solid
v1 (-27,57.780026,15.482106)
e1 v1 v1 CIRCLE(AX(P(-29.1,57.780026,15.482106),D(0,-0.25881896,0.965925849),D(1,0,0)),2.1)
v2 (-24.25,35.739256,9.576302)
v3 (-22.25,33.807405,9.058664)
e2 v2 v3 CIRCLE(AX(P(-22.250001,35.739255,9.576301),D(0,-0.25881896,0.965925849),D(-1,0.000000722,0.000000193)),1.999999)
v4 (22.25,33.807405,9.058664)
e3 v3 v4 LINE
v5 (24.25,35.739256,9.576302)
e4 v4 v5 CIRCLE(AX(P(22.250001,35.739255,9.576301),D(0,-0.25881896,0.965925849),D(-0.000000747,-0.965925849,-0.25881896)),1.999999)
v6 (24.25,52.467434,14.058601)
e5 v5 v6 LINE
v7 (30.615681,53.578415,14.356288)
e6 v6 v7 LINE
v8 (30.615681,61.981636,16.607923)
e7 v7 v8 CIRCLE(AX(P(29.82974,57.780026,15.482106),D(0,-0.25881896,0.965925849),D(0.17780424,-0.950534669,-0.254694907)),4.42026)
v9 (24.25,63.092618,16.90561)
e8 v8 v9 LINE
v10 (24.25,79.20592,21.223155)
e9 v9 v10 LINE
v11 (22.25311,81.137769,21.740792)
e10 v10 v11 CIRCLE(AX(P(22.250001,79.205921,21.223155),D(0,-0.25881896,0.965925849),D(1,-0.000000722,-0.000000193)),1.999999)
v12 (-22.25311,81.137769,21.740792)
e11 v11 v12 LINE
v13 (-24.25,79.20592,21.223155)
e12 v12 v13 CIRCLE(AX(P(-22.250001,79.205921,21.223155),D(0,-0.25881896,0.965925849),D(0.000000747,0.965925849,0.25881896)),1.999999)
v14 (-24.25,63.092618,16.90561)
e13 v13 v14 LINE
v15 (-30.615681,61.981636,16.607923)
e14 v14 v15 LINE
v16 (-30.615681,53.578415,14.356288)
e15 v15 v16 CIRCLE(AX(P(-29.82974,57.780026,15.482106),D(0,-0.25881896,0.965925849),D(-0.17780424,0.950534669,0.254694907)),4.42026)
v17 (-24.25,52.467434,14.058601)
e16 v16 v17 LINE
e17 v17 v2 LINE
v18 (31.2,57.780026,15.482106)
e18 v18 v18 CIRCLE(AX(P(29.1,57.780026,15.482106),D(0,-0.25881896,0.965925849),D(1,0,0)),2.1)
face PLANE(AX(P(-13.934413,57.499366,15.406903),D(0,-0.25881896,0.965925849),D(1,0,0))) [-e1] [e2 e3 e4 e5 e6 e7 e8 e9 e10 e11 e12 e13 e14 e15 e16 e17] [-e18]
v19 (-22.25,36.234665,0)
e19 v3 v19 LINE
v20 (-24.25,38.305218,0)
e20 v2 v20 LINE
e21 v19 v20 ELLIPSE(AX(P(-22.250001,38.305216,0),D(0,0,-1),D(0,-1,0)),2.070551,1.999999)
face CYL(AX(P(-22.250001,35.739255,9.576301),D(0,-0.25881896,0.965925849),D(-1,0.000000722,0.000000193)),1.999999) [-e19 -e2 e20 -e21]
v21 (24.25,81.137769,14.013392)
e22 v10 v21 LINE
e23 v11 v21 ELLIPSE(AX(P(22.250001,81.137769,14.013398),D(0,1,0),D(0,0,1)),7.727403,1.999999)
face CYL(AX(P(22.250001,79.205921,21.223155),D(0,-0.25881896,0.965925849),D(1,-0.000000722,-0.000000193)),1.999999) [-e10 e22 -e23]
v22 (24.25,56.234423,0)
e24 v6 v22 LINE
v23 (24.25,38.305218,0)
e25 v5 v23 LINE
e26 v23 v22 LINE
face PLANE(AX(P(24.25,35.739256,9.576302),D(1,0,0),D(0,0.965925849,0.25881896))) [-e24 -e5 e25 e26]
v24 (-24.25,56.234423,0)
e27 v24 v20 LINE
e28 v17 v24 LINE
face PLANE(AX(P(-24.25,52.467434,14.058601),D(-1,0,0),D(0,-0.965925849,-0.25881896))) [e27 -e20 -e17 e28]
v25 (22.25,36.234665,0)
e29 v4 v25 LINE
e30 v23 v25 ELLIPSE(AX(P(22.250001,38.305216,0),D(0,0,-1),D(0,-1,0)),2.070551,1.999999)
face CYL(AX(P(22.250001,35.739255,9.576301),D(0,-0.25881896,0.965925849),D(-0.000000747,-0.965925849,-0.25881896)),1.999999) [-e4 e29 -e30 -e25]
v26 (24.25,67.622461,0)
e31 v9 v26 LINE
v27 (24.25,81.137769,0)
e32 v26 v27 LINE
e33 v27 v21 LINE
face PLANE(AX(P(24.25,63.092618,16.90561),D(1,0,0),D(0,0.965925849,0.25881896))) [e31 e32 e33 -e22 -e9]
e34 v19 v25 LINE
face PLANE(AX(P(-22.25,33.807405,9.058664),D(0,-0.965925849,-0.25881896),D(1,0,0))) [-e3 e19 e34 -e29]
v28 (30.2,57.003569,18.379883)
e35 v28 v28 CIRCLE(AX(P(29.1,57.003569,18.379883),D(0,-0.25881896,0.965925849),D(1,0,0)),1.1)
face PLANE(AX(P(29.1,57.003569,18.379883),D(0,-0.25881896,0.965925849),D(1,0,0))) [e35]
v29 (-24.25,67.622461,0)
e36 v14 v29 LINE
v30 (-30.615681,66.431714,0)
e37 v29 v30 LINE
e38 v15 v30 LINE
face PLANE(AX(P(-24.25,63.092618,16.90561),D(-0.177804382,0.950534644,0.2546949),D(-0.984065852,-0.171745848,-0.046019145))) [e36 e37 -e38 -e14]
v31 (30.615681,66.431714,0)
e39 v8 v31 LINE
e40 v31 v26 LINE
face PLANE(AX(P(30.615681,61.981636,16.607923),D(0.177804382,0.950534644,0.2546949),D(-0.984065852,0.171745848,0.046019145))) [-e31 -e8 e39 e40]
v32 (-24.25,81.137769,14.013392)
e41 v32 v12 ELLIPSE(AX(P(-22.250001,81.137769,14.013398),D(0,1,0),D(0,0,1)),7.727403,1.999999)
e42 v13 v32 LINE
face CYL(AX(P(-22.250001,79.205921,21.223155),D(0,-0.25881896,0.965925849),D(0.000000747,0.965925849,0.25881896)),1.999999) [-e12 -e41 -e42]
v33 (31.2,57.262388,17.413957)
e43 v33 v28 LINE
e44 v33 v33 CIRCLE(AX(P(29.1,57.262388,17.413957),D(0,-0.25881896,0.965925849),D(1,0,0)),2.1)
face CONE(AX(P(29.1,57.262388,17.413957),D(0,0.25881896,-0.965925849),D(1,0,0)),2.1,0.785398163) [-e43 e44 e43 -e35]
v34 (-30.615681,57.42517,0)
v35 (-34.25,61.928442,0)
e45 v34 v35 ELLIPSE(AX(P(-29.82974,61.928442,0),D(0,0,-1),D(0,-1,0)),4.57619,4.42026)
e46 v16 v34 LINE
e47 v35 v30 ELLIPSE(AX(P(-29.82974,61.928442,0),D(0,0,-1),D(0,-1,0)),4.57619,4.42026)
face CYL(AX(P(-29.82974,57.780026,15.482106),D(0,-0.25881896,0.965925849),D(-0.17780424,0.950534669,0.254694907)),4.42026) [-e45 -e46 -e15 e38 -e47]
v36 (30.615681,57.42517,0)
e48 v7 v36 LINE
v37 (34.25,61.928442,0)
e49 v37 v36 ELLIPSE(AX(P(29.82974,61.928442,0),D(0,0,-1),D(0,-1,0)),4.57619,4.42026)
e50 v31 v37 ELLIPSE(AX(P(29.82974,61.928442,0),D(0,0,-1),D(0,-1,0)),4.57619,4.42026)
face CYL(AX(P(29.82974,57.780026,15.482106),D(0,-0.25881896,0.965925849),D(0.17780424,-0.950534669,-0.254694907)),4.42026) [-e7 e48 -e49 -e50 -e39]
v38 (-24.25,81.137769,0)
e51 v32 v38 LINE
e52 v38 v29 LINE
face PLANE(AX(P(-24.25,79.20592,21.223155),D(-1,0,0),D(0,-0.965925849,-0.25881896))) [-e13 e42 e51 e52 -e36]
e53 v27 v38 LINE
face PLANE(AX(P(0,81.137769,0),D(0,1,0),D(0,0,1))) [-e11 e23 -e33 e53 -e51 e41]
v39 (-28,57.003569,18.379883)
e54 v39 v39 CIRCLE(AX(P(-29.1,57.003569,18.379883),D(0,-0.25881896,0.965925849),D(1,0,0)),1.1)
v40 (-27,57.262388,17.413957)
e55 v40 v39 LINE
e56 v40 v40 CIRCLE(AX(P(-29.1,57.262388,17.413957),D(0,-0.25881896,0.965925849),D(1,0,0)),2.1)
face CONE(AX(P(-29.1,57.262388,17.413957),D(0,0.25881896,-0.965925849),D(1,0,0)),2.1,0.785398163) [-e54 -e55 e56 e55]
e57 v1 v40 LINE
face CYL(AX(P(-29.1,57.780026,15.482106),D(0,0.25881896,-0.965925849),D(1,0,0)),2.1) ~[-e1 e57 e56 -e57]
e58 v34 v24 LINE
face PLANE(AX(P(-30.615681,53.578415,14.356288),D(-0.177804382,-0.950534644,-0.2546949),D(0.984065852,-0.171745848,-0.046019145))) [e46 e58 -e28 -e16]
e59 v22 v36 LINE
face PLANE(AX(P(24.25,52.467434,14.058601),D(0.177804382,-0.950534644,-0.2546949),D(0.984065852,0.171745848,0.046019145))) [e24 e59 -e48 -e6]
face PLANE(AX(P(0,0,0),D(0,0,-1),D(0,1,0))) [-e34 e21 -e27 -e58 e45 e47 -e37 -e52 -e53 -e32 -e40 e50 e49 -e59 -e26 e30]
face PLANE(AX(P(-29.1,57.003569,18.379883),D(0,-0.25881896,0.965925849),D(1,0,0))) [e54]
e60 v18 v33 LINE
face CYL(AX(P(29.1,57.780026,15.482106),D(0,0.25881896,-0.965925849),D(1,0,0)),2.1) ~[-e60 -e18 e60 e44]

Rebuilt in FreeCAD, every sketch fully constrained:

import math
import FreeCAD as App
import Part
import Sketcher

V = App.Vector
Q = App.Units.Quantity


def edges_at(feature, points):
    """Names of the edges that pass closest to the given points."""
    edges = feature.Shape.Edges
    near = lambda p: min(range(len(edges)), key=lambda i: edges[i].distToShape(Part.Vertex(*p))[0])
    return sorted({f"Edge{near(p) + 1}" for p in points})


def add_polygon(sketch, points):
    """Adds a closed chain of lines whose ends are joined by coincident constraints."""
    first, n = sketch.GeometryCount, len(points)
    for a, b in zip(points, points[1:] + points[:1]):
        sketch.addGeometry(Part.LineSegment(App.Vector(*a, 0), App.Vector(*b, 0)), False)
    for i in range(n):
        sketch.addConstraint(Sketcher.Constraint("Coincident", first + i, 2, first + (i + 1) % n, 1))

doc = App.newDocument("Part")
body = doc.addObject("PartDesign::Body", "Body")

# Sketch on YZ plane
sketch1 = body.newObject("Sketcher::SketchObject", "Sketch")
sketch1.AttachmentSupport = (doc.getObject("YZ_Plane"), [""])
sketch1.MapMode = "FlatFace"
add_polygon(sketch1, [(81, 22), (0, 0), (81, 0)])  # lines 0-2
sketch1.addConstraint([
    Sketcher.Constraint("Horizontal", 1),
    Sketcher.Constraint("Vertical", 2),
    Sketcher.Constraint("Coincident", 0, 2, -1, 1),
    Sketcher.Constraint("Angle", 0, Q("-165 deg")),
    Sketcher.Constraint("Distance", 0, Q("84 mm")),
])
pad1 = body.newObject("PartDesign::Pad", "Pad")
pad1.Profile = sketch1
pad1.Length = 68.5
pad1.Midplane = True
body2 = doc.addObject("PartDesign::Body", "Body001")

# Sketch on an angled plane
sketch2 = body2.newObject("Sketcher::SketchObject", "Sketch001")
sketch2.Placement = App.Placement(V(0, 0, 0), App.Rotation(V(1, 0, 0), V(0, 0.965925849, 0.25881896), V(0, -0.25881896, 0.965925849), "ZXY"))
sketch2.addGeometry([
    Part.LineSegment(V(-22.2, 35, 0), V(22.2, 35, 0)),  # 0
    Part.ArcOfCircle(Part.Circle(V(22.3, 37, 0), V(0, 0, 1), 2), math.radians(-90), math.radians(0)),  # 1
    Part.LineSegment(V(24.2, 37, 0), V(24.2, 54.3, 0)),  # 2
    Part.LineSegment(V(24.2, 54.3, 0), V(30.6, 55.5, 0)),  # 3
    Part.ArcOfCircle(Part.Circle(V(29.8, 59.8, 0), V(0, 0, 1), 4.4), math.radians(-80), math.radians(80)),  # 4
    Part.LineSegment(V(30.6, 64.2, 0), V(24.2, 65.3, 0)),  # 5
    Part.LineSegment(V(24.2, 65.3, 0), V(24.2, 82, 0)),  # 6
    Part.ArcOfCircle(Part.Circle(V(22.3, 82, 0), V(0, 0, 1), 2), math.radians(0), math.radians(90)),  # 7
    Part.LineSegment(V(22.2, 84, 0), V(-22.2, 84, 0)),  # 8
    Part.ArcOfCircle(Part.Circle(V(-22.3, 82, 0), V(0, 0, 1), 2), math.radians(90), math.radians(180)),  # 9
    Part.LineSegment(V(-24.2, 82, 0), V(-24.2, 65.3, 0)),  # 10
    Part.LineSegment(V(-24.2, 65.3, 0), V(-30.6, 64.2, 0)),  # 11
    Part.ArcOfCircle(Part.Circle(V(-29.8, 59.8, 0), V(0, 0, 1), 4.4), math.radians(100), math.radians(260)),  # 12
    Part.LineSegment(V(-30.6, 55.5, 0), V(-24.2, 54.3, 0)),  # 13
    Part.LineSegment(V(-24.2, 54.3, 0), V(-24.2, 37, 0)),  # 14
    Part.ArcOfCircle(Part.Circle(V(-22.3, 37, 0), V(0, 0, 1), 2), math.radians(180), math.radians(270)),  # 15
], False)
sketch2.addConstraint([
    Sketcher.Constraint("Tangent", 0, 2, 1, 1),
    Sketcher.Constraint("Tangent", 1, 2, 2, 1),
    Sketcher.Constraint("Coincident", 2, 2, 3, 1),
    Sketcher.Constraint("Tangent", 3, 2, 4, 1),
    Sketcher.Constraint("Tangent", 4, 2, 5, 1),
    Sketcher.Constraint("Coincident", 5, 2, 6, 1),
    Sketcher.Constraint("Tangent", 6, 2, 7, 1),
    Sketcher.Constraint("Tangent", 7, 2, 8, 1),
    Sketcher.Constraint("Tangent", 8, 2, 9, 1),
    Sketcher.Constraint("Tangent", 9, 2, 10, 1),
    Sketcher.Constraint("Coincident", 10, 2, 11, 1),
    Sketcher.Constraint("Tangent", 11, 2, 12, 1),
    Sketcher.Constraint("Tangent", 12, 2, 13, 1),
    Sketcher.Constraint("Coincident", 13, 2, 14, 1),
    Sketcher.Constraint("Tangent", 14, 2, 15, 1),
    Sketcher.Constraint("Tangent", 15, 2, 0, 1),
    Sketcher.Constraint("Horizontal", 0),
    Sketcher.Constraint("Vertical", 2),
    Sketcher.Constraint("Vertical", 6),
    Sketcher.Constraint("Horizontal", 8),
    Sketcher.Constraint("Vertical", 10),
    Sketcher.Constraint("Vertical", 14),
    Sketcher.Constraint("Equal", 1, 7),
    Sketcher.Constraint("Equal", 7, 9),
    Sketcher.Constraint("Equal", 4, 12),
    Sketcher.Constraint("Equal", 9, 15),
    Sketcher.Constraint("Symmetric", 4, 3, 12, 3, -2),
    Sketcher.Constraint("Symmetric", 5, 2, 10, 2, -2),
    Sketcher.Constraint("Symmetric", 2, 2, 13, 2, -2),
    Sketcher.Constraint("Parallel", 3, 11),
    Sketcher.Constraint("Vertical", 1, 3, 7, 3),
    Sketcher.Constraint("Radius", 1, Q("1.999999 mm")),
    Sketcher.Constraint("DistanceX", 0, 1, 0, 2, Q("44.5 mm")),
    Sketcher.Constraint("DistanceY", -1, 1, 1, 3, Q("36.999998 mm")),
    Sketcher.Constraint("DistanceY", -1, 1, 7, 3, Q("82.000001 mm")),
    Sketcher.Constraint("DistanceY", 2, 2, 5, 2, Q("11 mm")),
    Sketcher.Constraint("Radius", 4, Q("4.42026 mm")),
    Sketcher.Constraint("DistanceY", 2, 1, 2, 2, Q("17.318283 mm")),
    Sketcher.Constraint("DistanceX", -1, 1, 4, 3, Q("29.82974 mm")),
])
pad2 = body2.newObject("PartDesign::Pad", "Pad001")
pad2.Profile = sketch2
pad2.Length = 30
pad2.Reversed = True
doc.recompute()

boolean = body2.newObject("PartDesign::Boolean", "Boolean")
boolean.Type = "Common"
boolean.addObjects([body])

# Sketch on an angled plane
sketch3 = body2.newObject("Sketcher::SketchObject", "Sketch002")
sketch3.Placement = App.Placement(V(0, 0, 0), App.Rotation(V(1, 0, 0), V(0, 0.965925849, 0.25881896), V(0, -0.25881896, 0.965925849), "ZXY"))
sketch3.addGeometry([
    Part.Circle(V(29.1, 59.8, 0), V(0, 0, 1), 2.1),
    Part.Circle(V(-29.1, 59.8, 0), V(0, 0, 1), 2.1),
], False)
sketch3.addConstraint([
    Sketcher.Constraint("Equal", 0, 1),
    Sketcher.Constraint("Symmetric", 0, 3, 1, 3, -2),
    Sketcher.Constraint("Diameter", 0, Q("4.2 mm")),
    Sketcher.Constraint("DistanceX", -1, 1, 0, 3, Q("29.1 mm")),
    Sketcher.Constraint("DistanceY", -1, 1, 0, 3, Q("59.818283 mm")),
])
pad3 = body2.newObject("PartDesign::Pad", "Pad002")
pad3.Profile = sketch3
pad3.Length = 3
doc.recompute()

chamfer = body2.newObject("PartDesign::Chamfer", "Chamfer")
chamfer.Base = (pad3, edges_at(pad3, [(27, 57.004, 18.38), (-31.2, 57.004, 18.38)]))
chamfer.Size = 1

doc.recompute()
